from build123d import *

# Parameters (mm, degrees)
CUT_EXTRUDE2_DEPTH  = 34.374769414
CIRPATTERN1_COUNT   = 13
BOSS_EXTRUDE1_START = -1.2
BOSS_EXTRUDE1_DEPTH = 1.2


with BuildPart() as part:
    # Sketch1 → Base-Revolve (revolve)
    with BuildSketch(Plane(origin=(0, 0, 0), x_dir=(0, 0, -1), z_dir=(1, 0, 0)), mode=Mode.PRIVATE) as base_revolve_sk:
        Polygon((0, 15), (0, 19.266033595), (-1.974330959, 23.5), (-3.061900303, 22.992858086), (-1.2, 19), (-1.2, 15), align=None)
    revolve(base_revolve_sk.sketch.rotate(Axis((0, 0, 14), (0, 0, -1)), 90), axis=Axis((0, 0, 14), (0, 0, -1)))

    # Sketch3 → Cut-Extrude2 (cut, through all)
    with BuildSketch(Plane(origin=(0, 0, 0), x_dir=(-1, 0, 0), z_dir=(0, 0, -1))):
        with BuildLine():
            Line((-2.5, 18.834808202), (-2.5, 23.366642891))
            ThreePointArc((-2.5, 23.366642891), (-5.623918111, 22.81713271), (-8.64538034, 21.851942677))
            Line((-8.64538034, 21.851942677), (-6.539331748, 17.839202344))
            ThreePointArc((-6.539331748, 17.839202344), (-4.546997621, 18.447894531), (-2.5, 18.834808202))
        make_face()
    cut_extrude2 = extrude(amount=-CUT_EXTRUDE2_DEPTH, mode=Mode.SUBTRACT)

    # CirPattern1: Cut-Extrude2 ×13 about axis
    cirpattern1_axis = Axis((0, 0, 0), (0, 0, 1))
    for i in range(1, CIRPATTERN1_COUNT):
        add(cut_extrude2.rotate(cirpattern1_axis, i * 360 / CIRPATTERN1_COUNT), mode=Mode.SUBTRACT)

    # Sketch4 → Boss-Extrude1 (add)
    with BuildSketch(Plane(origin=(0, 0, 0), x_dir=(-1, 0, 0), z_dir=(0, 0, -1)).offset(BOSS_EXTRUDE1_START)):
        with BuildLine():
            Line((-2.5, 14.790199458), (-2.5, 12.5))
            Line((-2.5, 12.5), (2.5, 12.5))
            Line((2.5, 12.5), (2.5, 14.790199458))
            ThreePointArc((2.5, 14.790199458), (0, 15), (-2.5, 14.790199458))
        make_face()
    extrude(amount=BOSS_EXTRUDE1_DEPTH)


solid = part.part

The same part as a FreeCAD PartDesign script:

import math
import FreeCAD as App
import Part
import Sketcher
from FreeCAD import Vector
Q = App.Units.Quantity

doc = App.newDocument("Part")
params = doc.addObject("Spreadsheet::Sheet", "Params")
for row, (alias, value) in enumerate([
    ("sketch1_width", "4 mm"),
    ("sketch1_height", "1.2 mm"),
    ("sketch1_length", "1.2 mm"),
    ("revolution_angle", "360 deg"),
    ("sketch2_radius", "19 mm"),
    ("sketch2_radius2", "23.5 mm"),
    ("sketch3_radius", "15 mm"),
    ("sketch3_width", "5 mm"),
    ("pad1_length", "1.2 mm"),
], start=1):
    params.set(f"A{row}", alias)
    params.set(f"B{row}", "=" + value)
    params.setAlias(f"B{row}", alias)

body = doc.addObject("PartDesign::Body", "Body")

# Sketch on YZ plane
sketch1 = doc.addObject("Sketcher::SketchObject", "Sketch")
body.addObject(sketch1)
sketch1.AttachmentSupport = (doc.YZ_Plane, [""])
sketch1.MapMode = "FlatFace"
sketch1.addGeometry(Part.LineSegment(Vector(15, 0, 0), Vector(19.3, 0, 0)), False)
sketch1.addGeometry(Part.LineSegment(Vector(19.3, 0, 0), Vector(23.5, 2, 0)), False)
sketch1.addGeometry(Part.LineSegment(Vector(23.5, 2, 0), Vector(23, 3.1, 0)), False)
sketch1.addGeometry(Part.LineSegment(Vector(23, 3.1, 0), Vector(19, 1.2, 0)), False)
sketch1.addGeometry(Part.LineSegment(Vector(19, 1.2, 0), Vector(15, 1.2, 0)), False)
sketch1.addGeometry(Part.LineSegment(Vector(15, 1.2, 0), Vector(15, 0, 0)), False)
sketch1.addConstraint(Sketcher.Constraint("Coincident", 0, 2, 1, 1))
sketch1.addConstraint(Sketcher.Constraint("Coincident", 1, 2, 2, 1))
sketch1.addConstraint(Sketcher.Constraint("Coincident", 2, 2, 3, 1))
sketch1.addConstraint(Sketcher.Constraint("Coincident", 3, 2, 4, 1))
sketch1.addConstraint(Sketcher.Constraint("Coincident", 4, 2, 5, 1))
sketch1.addConstraint(Sketcher.Constraint("Coincident", 5, 2, 0, 1))
sketch1.addConstraint(Sketcher.Constraint("Horizontal", 0))
sketch1.addConstraint(Sketcher.Constraint("Horizontal", 4))
sketch1.addConstraint(Sketcher.Constraint("Vertical", 5))
sketch1.addConstraint(Sketcher.Constraint("PointOnObject", 0, 2, -1))
sketch1.addConstraint(Sketcher.Constraint("Perpendicular", 1, 2))
sketch1.addConstraint(Sketcher.Constraint("Perpendicular", 2, 3))
sketch1.addConstraint(Sketcher.Constraint("DistanceX", 4, 2, 4, 1, 4.0))
sketch1.addConstraint(Sketcher.Constraint("Angle", 1, Q("25 deg")))
sketch1.addConstraint(Sketcher.Constraint("DistanceY", 5, 2, 5, 1, 1.2))
sketch1.addConstraint(Sketcher.Constraint("DistanceX", -1, 1, 3, 2, 19.0))
sketch1.addConstraint(Sketcher.Constraint("Distance", 2, 1.2))
sketch1.addConstraint(Sketcher.Constraint("DistanceX", -1, 1, 1, 2, 23.5))
sketch1.setExpression("Constraints[12]", "Params.sketch1_width")
sketch1.setExpression("Constraints[14]", "Params.sketch1_height")
sketch1.setExpression("Constraints[16]", "Params.sketch1_length")
revolution = doc.addObject("PartDesign::Revolution", "Revolution")
body.addObject(revolution)
revolution.Profile = sketch1
revolution.ReferenceAxis = (sketch1, ["V_Axis"])
revolution.setExpression("Angle", "Params.revolution_angle")

# Sketch on XY plane
sketch2 = doc.addObject("Sketcher::SketchObject", "Sketch001")
body.addObject(sketch2)
sketch2.AttachmentSupport = (doc.XY_Plane, [""])
sketch2.MapMode = "FlatFace"
sketch2.addGeometry(Part.LineSegment(Vector(2.5, 18.8, 0), Vector(2.5, 23.4, 0)), False)
sketch2.addGeometry(Part.ArcOfCircle(Part.Circle(Vector(0, 0, 0), Vector(0, 0, 1), 23.5), math.radians(68.41), math.radians(83.89)), False)
sketch2.addGeometry(Part.LineSegment(Vector(8.6, 21.9, 0), Vector(6.5, 17.8, 0)), False)
sketch2.addGeometry(Part.ArcOfCircle(Part.Circle(Vector(0, 0, 0), Vector(0, 0, 1), 19), math.radians(69.87), math.radians(82.44)), False)
sketch2.addConstraint(Sketcher.Constraint("Coincident", 0, 2, 1, 2))
sketch2.addConstraint(Sketcher.Constraint("Coincident", 1, 1, 2, 1))
sketch2.addConstraint(Sketcher.Constraint("Coincident", 2, 2, 3, 1))
sketch2.addConstraint(Sketcher.Constraint("Coincident", 3, 2, 0, 1))
sketch2.addConstraint(Sketcher.Constraint("Vertical", 0))
sketch2.addConstraint(Sketcher.Constraint("Coincident", 1, 3, -1, 1))
sketch2.addConstraint(Sketcher.Constraint("Coincident", 3, 3, -1, 1))
sketch2.addConstraint(Sketcher.Constraint("Radius", 3, 19.0))
sketch2.addConstraint(Sketcher.Constraint("Radius", 1, 23.5))
sketch2.addConstraint(Sketcher.Constraint("DistanceX", -1, 1, 0, 2, 2.5))
sketch2.addConstraint(Sketcher.Constraint("DistanceY", 1, 1, 0, 2, 1.5147))
sketch2.addConstraint(Sketcher.Constraint("DistanceX", -1, 1, 2, 2, 6.539332))
sketch2.setExpression("Constraints[7]", "Params.sketch2_radius")
sketch2.setExpression("Constraints[8]", "Params.sketch2_radius2")
pocket1 = doc.addObject("PartDesign::Pocket", "Pocket")
body.addObject(pocket1)
pocket1.Profile = sketch2
pocket1.Type = "ThroughAll"
pocket1.Reversed = True
doc.recompute()

polarpattern = doc.addObject("PartDesign::PolarPattern", "PolarPattern")
body.addObject(polarpattern)
polarpattern.Originals = [pocket1]
polarpattern.Axis = (doc.Z_Axis, [""])
polarpattern.Angle = 360
polarpattern.Occurrences = 13
body.Tip = polarpattern

# Sketch on XY plane
sketch3 = doc.addObject("Sketcher::SketchObject", "Sketch002")
body.addObject(sketch3)
sketch3.AttachmentSupport = (doc.XY_Plane, [""])
sketch3.MapMode = "FlatFace"
sketch3.AttachmentOffset = App.Placement(Vector(0, 0, 1.2), App.Rotation())
sketch3.addGeometry(Part.LineSegment(Vector(2.5, 14.8, 0), Vector(2.5, 12.5, 0)), False)
sketch3.addGeometry(Part.LineSegment(Vector(2.5, 12.5, 0), Vector(-2.5, 12.5, 0)), False)
sketch3.addGeometry(Part.LineSegment(Vector(-2.5, 12.5, 0), Vector(-2.5, 14.8, 0)), False)
sketch3.addGeometry(Part.ArcOfCircle(Part.Circle(Vector(0, 0, 0), Vector(0, 0, 1), 15), math.radians(80.41), math.radians(99.59)), False)
sketch3.addConstraint(Sketcher.Constraint("Coincident", 0, 2, 1, 1))
sketch3.addConstraint(Sketcher.Constraint("Coincident", 1, 2, 2, 1))
sketch3.addConstraint(Sketcher.Constraint("Coincident", 2, 2, 3, 2))
sketch3.addConstraint(Sketcher.Constraint("Coincident", 3, 1, 0, 1))
sketch3.addConstraint(Sketcher.Constraint("Vertical", 0))
sketch3.addConstraint(Sketcher.Constraint("Horizontal", 1))
sketch3.addConstraint(Sketcher.Constraint("Vertical", 2))
sketch3.addConstraint(Sketcher.Constraint("Coincident", 3, 3, -1, 1))
sketch3.addConstraint(Sketcher.Constraint("Horizontal", 2, 2, 3, 1))
sketch3.addConstraint(Sketcher.Constraint("Radius", 3, 15.0))
sketch3.addConstraint(Sketcher.Constraint("DistanceX", 1, 2, 1, 1, 5.0))
sketch3.addConstraint(Sketcher.Constraint("DistanceY", -1, 1, 0, 2, 12.5))
sketch3.setExpression("Constraints[9]", "Params.sketch3_radius")
sketch3.setExpression("Constraints[10]", "Params.sketch3_width")
pad1 = doc.addObject("PartDesign::Pad", "Pad")
body.addObject(pad1)
pad1.Profile = sketch3
pad1.setExpression("Length", "Params.pad1_length")
pad1.Reversed = True

doc.recompute()
